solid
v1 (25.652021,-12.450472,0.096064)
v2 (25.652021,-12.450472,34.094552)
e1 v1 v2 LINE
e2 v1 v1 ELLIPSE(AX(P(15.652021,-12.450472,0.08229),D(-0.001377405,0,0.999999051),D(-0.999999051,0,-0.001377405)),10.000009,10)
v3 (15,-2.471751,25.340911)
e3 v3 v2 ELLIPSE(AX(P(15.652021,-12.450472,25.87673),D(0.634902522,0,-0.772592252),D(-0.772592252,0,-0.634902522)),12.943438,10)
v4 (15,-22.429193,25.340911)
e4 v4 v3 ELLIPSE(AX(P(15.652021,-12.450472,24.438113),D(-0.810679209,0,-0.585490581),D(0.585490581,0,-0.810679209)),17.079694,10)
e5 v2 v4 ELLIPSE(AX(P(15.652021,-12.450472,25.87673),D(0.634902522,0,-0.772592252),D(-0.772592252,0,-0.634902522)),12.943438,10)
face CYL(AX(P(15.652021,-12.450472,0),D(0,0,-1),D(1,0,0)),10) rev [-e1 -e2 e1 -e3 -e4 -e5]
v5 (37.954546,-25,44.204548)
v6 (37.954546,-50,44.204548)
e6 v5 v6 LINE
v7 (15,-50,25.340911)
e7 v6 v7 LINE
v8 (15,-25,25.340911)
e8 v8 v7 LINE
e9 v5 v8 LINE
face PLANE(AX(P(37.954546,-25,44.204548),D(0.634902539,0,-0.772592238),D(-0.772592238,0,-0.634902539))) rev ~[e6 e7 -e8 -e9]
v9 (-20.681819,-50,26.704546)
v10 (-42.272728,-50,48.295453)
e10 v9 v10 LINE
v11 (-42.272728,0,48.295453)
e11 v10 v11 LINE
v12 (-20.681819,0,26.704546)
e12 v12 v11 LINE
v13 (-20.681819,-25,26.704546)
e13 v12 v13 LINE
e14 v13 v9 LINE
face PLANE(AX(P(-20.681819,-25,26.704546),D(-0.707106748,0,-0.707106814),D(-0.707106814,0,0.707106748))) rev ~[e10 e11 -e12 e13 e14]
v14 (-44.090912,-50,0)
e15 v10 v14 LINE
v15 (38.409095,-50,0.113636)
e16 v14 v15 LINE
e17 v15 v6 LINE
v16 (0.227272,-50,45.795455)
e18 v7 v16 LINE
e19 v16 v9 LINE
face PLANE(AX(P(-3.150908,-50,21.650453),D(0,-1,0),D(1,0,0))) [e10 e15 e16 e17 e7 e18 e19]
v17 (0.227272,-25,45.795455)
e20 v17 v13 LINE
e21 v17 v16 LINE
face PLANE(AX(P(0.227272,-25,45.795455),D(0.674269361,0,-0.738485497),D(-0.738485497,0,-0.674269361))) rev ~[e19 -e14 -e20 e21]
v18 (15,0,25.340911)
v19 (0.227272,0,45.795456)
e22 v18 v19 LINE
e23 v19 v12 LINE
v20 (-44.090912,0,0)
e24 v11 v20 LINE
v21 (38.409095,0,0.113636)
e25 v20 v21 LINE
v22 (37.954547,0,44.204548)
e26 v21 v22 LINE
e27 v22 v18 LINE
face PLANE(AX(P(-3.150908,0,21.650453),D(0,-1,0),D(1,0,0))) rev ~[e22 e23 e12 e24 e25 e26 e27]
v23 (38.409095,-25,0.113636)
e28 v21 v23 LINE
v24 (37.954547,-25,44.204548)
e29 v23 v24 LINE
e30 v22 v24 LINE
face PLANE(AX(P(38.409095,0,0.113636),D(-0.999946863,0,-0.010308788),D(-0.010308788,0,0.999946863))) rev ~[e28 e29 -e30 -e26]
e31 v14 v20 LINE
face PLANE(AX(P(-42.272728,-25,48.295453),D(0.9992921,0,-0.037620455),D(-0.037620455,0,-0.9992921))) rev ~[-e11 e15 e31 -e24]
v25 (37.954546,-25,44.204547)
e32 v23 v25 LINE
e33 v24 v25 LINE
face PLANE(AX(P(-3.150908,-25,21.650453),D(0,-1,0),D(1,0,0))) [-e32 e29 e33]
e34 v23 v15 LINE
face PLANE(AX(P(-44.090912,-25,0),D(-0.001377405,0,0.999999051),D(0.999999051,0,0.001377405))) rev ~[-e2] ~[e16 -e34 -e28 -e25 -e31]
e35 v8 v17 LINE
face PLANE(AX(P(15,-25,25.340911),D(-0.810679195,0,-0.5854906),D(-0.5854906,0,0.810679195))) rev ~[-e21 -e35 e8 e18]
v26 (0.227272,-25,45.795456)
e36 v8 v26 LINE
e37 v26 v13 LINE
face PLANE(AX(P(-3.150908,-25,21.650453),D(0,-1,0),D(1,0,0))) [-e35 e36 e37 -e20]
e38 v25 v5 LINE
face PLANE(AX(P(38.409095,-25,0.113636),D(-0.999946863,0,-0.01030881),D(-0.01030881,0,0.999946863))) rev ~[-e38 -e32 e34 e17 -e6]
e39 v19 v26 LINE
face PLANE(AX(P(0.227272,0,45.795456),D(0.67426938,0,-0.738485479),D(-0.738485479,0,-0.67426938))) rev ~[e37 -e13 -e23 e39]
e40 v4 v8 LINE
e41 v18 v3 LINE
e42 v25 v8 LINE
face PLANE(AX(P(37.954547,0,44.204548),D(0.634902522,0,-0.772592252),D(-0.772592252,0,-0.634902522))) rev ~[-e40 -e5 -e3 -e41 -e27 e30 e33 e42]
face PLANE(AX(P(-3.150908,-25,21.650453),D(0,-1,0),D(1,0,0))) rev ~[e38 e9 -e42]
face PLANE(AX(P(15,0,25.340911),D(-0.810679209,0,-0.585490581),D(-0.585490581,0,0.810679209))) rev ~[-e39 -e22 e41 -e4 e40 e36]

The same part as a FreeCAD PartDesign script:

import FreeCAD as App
import Part
import Sketcher
Q = App.Units.Quantity

doc = App.newDocument("Part")
body = doc.addObject("PartDesign::Body", "Body")

sketch1 = body.newObject("Sketcher::SketchObject", "Sketch")
sketch1.AttachmentSupport = (doc.getObject("XZ_Plane"), [""])
sketch1.MapMode = "FlatFace"
sketch1.addGeometry([
    Part.LineSegment(App.Vector(-42.272728, 48.295453, 0), App.Vector(-44.090912, 0, 0)),
    Part.LineSegment(App.Vector(-44.090912, 0, 0), App.Vector(38.409095, 0.113636, 0)),
    Part.LineSegment(App.Vector(38.409095, 0.113636, 0), App.Vector(37.954547, 44.204548, 0)),
    Part.LineSegment(App.Vector(37.954547, 44.204548, 0), App.Vector(15, 25.340911, 0)),
    Part.LineSegment(App.Vector(15, 25.340911, 0), App.Vector(0.227272, 45.795456, 0)),
    Part.LineSegment(App.Vector(0.227272, 45.795456, 0), App.Vector(-20.681819, 26.704546, 0)),
    Part.LineSegment(App.Vector(-20.681819, 26.704546, 0), App.Vector(-42.272728, 48.295453, 0)),
], False)
sketch1.addConstraint([
    Sketcher.Constraint("Coincident", 0, 2, 1, 1),
    Sketcher.Constraint("Coincident", 1, 2, 2, 1),
    Sketcher.Constraint("Coincident", 2, 2, 3, 1),
    Sketcher.Constraint("Coincident", 3, 2, 4, 1),
    Sketcher.Constraint("Coincident", 4, 2, 5, 1),
    Sketcher.Constraint("Coincident", 5, 2, 6, 1),
    Sketcher.Constraint("Coincident", 6, 2, 0, 1),
    Sketcher.Constraint("PointOnObject", 0, 2, -1),
    Sketcher.Constraint("Angle", 6, Q("135.000003 deg")),
    Sketcher.Constraint("DistanceX", -1, 1, 3, 2, Q("15 mm")),
    Sketcher.Constraint("DistanceX", 6, 2, 4, 2, Q("42.5 mm")),
    Sketcher.Constraint("DistanceY", -1, 1, 2, 2, Q("44.204548 mm")),
    Sketcher.Constraint("DistanceY", -1, 1, 3, 2, Q("25.340911 mm")),
    Sketcher.Constraint("DistanceX", 5, 2, -1, 1, Q("20.681819 mm")),
    Sketcher.Constraint("DistanceX", 2, 2, 1, 2, Q("0.454548 mm")),
    Sketcher.Constraint("DistanceX", 0, 2, 2, 2, Q("82.045459 mm")),
    Sketcher.Constraint("DistanceX", 4, 2, 3, 2, Q("14.772728 mm")),
    Sketcher.Constraint("DistanceY", 1, 2, 4, 2, Q("45.68182 mm")),
    Sketcher.Constraint("DistanceY", 5, 2, 4, 2, Q("19.09091 mm")),
    Sketcher.Constraint("Distance", 0, Q("48.329666 mm")),
    Sketcher.Constraint("Distance", 2, Q("44.093255 mm")),
])
pad1 = body.newObject("PartDesign::Pad", "Pad")
pad1.Profile = sketch1
pad1.Length = 25

sketch2 = body.newObject("Sketcher::SketchObject", "Sketch001")
sketch2.AttachmentSupport = (doc.getObject("XY_Plane"), [""])
sketch2.MapMode = "FlatFace"
sketch2.addGeometry(Part.Circle(App.Vector(15.652021, -12.450472, 0), App.Vector(0, 0, 1), 10), False)
sketch2.addConstraint([
    Sketcher.Constraint("Diameter", 0, Q("20 mm")),
    Sketcher.Constraint("DistanceX", -1, 1, 0, 3, Q("15.652021 mm")),
    Sketcher.Constraint("DistanceY", 0, 3, -1, 1, Q("12.450472 mm")),
])
pocket1 = body.newObject("PartDesign::Pocket", "Pocket")
pocket1.Profile = sketch2
pocket1.Type = "ThroughAll"
pocket1.Reversed = True

sketch3 = body.newObject("Sketcher::SketchObject", "Sketch002")
sketch3.AttachmentSupport = (doc.getObject("XZ_Plane"), [""])
sketch3.MapMode = "FlatFace"
sketch3.AttachmentOffset = App.Placement(App.Vector(0, 0, 25), App.Rotation())
sketch3.addGeometry([
    Part.LineSegment(App.Vector(38.409095, 0.113636, 0), App.Vector(37.954546, 44.204548, 0)),
    Part.LineSegment(App.Vector(37.954546, 44.204548, 0), App.Vector(15, 25.340911, 0)),
    Part.LineSegment(App.Vector(15, 25.340911, 0), App.Vector(0.227272, 45.795455, 0)),
    Part.LineSegment(App.Vector(0.227272, 45.795455, 0), App.Vector(-20.681819, 26.704546, 0)),
    Part.LineSegment(App.Vector(-20.681819, 26.704546, 0), App.Vector(-42.272728, 48.295453, 0)),
    Part.LineSegment(App.Vector(-42.272728, 48.295453, 0), App.Vector(-44.090912, 0, 0)),
    Part.LineSegment(App.Vector(-44.090912, 0, 0), App.Vector(38.409095, 0.113636, 0)),
], False)
sketch3.addConstraint([
    Sketcher.Constraint("Coincident", 0, 2, 1, 1),
    Sketcher.Constraint("Coincident", 1, 2, 2, 1),
    Sketcher.Constraint("Coincident", 2, 2, 3, 1),
    Sketcher.Constraint("Coincident", 3, 2, 4, 1),
    Sketcher.Constraint("Coincident", 4, 2, 5, 1),
    Sketcher.Constraint("Coincident", 5, 2, 6, 1),
    Sketcher.Constraint("Coincident", 6, 2, 0, 1),
    Sketcher.Constraint("PointOnObject", 5, 2, -1),
    Sketcher.Constraint("Angle", 4, Q("135.000003 deg")),
    Sketcher.Constraint("DistanceX", -1, 1, 1, 2, Q("15 mm")),
    Sketcher.Constraint("DistanceX", 4, 2, 2, 2, Q("42.5 mm")),
    Sketcher.Constraint("DistanceY", 2, 2, 4, 2, Q("2.499998 mm")),
    Sketcher.Constraint("DistanceY", -1, 1, 0, 2, Q("44.204548 mm")),
    Sketcher.Constraint("DistanceY", -1, 1, 1, 2, Q("25.340911 mm")),
    Sketcher.Constraint("DistanceX", 3, 2, -1, 1, Q("20.681819 mm")),
    Sketcher.Constraint("DistanceX", 2, 2, 1, 2, Q("14.772728 mm")),
    Sketcher.Constraint("DistanceX", 0, 2, 6, 2, Q("0.454549 mm")),
    Sketcher.Constraint("DistanceY", 6, 2, 2, 2, Q("45.681819 mm")),
    Sketcher.Constraint("Distance", 0, Q("44.093255 mm")),
    Sketcher.Constraint("Distance", 1, Q("29.711075 mm")),
    Sketcher.Constraint("Distance", 5, Q("48.329666 mm")),
])
pad2 = body.newObject("PartDesign::Pad", "Pad001")
pad2.Profile = sketch3
pad2.Length = 25

doc.recompute()
